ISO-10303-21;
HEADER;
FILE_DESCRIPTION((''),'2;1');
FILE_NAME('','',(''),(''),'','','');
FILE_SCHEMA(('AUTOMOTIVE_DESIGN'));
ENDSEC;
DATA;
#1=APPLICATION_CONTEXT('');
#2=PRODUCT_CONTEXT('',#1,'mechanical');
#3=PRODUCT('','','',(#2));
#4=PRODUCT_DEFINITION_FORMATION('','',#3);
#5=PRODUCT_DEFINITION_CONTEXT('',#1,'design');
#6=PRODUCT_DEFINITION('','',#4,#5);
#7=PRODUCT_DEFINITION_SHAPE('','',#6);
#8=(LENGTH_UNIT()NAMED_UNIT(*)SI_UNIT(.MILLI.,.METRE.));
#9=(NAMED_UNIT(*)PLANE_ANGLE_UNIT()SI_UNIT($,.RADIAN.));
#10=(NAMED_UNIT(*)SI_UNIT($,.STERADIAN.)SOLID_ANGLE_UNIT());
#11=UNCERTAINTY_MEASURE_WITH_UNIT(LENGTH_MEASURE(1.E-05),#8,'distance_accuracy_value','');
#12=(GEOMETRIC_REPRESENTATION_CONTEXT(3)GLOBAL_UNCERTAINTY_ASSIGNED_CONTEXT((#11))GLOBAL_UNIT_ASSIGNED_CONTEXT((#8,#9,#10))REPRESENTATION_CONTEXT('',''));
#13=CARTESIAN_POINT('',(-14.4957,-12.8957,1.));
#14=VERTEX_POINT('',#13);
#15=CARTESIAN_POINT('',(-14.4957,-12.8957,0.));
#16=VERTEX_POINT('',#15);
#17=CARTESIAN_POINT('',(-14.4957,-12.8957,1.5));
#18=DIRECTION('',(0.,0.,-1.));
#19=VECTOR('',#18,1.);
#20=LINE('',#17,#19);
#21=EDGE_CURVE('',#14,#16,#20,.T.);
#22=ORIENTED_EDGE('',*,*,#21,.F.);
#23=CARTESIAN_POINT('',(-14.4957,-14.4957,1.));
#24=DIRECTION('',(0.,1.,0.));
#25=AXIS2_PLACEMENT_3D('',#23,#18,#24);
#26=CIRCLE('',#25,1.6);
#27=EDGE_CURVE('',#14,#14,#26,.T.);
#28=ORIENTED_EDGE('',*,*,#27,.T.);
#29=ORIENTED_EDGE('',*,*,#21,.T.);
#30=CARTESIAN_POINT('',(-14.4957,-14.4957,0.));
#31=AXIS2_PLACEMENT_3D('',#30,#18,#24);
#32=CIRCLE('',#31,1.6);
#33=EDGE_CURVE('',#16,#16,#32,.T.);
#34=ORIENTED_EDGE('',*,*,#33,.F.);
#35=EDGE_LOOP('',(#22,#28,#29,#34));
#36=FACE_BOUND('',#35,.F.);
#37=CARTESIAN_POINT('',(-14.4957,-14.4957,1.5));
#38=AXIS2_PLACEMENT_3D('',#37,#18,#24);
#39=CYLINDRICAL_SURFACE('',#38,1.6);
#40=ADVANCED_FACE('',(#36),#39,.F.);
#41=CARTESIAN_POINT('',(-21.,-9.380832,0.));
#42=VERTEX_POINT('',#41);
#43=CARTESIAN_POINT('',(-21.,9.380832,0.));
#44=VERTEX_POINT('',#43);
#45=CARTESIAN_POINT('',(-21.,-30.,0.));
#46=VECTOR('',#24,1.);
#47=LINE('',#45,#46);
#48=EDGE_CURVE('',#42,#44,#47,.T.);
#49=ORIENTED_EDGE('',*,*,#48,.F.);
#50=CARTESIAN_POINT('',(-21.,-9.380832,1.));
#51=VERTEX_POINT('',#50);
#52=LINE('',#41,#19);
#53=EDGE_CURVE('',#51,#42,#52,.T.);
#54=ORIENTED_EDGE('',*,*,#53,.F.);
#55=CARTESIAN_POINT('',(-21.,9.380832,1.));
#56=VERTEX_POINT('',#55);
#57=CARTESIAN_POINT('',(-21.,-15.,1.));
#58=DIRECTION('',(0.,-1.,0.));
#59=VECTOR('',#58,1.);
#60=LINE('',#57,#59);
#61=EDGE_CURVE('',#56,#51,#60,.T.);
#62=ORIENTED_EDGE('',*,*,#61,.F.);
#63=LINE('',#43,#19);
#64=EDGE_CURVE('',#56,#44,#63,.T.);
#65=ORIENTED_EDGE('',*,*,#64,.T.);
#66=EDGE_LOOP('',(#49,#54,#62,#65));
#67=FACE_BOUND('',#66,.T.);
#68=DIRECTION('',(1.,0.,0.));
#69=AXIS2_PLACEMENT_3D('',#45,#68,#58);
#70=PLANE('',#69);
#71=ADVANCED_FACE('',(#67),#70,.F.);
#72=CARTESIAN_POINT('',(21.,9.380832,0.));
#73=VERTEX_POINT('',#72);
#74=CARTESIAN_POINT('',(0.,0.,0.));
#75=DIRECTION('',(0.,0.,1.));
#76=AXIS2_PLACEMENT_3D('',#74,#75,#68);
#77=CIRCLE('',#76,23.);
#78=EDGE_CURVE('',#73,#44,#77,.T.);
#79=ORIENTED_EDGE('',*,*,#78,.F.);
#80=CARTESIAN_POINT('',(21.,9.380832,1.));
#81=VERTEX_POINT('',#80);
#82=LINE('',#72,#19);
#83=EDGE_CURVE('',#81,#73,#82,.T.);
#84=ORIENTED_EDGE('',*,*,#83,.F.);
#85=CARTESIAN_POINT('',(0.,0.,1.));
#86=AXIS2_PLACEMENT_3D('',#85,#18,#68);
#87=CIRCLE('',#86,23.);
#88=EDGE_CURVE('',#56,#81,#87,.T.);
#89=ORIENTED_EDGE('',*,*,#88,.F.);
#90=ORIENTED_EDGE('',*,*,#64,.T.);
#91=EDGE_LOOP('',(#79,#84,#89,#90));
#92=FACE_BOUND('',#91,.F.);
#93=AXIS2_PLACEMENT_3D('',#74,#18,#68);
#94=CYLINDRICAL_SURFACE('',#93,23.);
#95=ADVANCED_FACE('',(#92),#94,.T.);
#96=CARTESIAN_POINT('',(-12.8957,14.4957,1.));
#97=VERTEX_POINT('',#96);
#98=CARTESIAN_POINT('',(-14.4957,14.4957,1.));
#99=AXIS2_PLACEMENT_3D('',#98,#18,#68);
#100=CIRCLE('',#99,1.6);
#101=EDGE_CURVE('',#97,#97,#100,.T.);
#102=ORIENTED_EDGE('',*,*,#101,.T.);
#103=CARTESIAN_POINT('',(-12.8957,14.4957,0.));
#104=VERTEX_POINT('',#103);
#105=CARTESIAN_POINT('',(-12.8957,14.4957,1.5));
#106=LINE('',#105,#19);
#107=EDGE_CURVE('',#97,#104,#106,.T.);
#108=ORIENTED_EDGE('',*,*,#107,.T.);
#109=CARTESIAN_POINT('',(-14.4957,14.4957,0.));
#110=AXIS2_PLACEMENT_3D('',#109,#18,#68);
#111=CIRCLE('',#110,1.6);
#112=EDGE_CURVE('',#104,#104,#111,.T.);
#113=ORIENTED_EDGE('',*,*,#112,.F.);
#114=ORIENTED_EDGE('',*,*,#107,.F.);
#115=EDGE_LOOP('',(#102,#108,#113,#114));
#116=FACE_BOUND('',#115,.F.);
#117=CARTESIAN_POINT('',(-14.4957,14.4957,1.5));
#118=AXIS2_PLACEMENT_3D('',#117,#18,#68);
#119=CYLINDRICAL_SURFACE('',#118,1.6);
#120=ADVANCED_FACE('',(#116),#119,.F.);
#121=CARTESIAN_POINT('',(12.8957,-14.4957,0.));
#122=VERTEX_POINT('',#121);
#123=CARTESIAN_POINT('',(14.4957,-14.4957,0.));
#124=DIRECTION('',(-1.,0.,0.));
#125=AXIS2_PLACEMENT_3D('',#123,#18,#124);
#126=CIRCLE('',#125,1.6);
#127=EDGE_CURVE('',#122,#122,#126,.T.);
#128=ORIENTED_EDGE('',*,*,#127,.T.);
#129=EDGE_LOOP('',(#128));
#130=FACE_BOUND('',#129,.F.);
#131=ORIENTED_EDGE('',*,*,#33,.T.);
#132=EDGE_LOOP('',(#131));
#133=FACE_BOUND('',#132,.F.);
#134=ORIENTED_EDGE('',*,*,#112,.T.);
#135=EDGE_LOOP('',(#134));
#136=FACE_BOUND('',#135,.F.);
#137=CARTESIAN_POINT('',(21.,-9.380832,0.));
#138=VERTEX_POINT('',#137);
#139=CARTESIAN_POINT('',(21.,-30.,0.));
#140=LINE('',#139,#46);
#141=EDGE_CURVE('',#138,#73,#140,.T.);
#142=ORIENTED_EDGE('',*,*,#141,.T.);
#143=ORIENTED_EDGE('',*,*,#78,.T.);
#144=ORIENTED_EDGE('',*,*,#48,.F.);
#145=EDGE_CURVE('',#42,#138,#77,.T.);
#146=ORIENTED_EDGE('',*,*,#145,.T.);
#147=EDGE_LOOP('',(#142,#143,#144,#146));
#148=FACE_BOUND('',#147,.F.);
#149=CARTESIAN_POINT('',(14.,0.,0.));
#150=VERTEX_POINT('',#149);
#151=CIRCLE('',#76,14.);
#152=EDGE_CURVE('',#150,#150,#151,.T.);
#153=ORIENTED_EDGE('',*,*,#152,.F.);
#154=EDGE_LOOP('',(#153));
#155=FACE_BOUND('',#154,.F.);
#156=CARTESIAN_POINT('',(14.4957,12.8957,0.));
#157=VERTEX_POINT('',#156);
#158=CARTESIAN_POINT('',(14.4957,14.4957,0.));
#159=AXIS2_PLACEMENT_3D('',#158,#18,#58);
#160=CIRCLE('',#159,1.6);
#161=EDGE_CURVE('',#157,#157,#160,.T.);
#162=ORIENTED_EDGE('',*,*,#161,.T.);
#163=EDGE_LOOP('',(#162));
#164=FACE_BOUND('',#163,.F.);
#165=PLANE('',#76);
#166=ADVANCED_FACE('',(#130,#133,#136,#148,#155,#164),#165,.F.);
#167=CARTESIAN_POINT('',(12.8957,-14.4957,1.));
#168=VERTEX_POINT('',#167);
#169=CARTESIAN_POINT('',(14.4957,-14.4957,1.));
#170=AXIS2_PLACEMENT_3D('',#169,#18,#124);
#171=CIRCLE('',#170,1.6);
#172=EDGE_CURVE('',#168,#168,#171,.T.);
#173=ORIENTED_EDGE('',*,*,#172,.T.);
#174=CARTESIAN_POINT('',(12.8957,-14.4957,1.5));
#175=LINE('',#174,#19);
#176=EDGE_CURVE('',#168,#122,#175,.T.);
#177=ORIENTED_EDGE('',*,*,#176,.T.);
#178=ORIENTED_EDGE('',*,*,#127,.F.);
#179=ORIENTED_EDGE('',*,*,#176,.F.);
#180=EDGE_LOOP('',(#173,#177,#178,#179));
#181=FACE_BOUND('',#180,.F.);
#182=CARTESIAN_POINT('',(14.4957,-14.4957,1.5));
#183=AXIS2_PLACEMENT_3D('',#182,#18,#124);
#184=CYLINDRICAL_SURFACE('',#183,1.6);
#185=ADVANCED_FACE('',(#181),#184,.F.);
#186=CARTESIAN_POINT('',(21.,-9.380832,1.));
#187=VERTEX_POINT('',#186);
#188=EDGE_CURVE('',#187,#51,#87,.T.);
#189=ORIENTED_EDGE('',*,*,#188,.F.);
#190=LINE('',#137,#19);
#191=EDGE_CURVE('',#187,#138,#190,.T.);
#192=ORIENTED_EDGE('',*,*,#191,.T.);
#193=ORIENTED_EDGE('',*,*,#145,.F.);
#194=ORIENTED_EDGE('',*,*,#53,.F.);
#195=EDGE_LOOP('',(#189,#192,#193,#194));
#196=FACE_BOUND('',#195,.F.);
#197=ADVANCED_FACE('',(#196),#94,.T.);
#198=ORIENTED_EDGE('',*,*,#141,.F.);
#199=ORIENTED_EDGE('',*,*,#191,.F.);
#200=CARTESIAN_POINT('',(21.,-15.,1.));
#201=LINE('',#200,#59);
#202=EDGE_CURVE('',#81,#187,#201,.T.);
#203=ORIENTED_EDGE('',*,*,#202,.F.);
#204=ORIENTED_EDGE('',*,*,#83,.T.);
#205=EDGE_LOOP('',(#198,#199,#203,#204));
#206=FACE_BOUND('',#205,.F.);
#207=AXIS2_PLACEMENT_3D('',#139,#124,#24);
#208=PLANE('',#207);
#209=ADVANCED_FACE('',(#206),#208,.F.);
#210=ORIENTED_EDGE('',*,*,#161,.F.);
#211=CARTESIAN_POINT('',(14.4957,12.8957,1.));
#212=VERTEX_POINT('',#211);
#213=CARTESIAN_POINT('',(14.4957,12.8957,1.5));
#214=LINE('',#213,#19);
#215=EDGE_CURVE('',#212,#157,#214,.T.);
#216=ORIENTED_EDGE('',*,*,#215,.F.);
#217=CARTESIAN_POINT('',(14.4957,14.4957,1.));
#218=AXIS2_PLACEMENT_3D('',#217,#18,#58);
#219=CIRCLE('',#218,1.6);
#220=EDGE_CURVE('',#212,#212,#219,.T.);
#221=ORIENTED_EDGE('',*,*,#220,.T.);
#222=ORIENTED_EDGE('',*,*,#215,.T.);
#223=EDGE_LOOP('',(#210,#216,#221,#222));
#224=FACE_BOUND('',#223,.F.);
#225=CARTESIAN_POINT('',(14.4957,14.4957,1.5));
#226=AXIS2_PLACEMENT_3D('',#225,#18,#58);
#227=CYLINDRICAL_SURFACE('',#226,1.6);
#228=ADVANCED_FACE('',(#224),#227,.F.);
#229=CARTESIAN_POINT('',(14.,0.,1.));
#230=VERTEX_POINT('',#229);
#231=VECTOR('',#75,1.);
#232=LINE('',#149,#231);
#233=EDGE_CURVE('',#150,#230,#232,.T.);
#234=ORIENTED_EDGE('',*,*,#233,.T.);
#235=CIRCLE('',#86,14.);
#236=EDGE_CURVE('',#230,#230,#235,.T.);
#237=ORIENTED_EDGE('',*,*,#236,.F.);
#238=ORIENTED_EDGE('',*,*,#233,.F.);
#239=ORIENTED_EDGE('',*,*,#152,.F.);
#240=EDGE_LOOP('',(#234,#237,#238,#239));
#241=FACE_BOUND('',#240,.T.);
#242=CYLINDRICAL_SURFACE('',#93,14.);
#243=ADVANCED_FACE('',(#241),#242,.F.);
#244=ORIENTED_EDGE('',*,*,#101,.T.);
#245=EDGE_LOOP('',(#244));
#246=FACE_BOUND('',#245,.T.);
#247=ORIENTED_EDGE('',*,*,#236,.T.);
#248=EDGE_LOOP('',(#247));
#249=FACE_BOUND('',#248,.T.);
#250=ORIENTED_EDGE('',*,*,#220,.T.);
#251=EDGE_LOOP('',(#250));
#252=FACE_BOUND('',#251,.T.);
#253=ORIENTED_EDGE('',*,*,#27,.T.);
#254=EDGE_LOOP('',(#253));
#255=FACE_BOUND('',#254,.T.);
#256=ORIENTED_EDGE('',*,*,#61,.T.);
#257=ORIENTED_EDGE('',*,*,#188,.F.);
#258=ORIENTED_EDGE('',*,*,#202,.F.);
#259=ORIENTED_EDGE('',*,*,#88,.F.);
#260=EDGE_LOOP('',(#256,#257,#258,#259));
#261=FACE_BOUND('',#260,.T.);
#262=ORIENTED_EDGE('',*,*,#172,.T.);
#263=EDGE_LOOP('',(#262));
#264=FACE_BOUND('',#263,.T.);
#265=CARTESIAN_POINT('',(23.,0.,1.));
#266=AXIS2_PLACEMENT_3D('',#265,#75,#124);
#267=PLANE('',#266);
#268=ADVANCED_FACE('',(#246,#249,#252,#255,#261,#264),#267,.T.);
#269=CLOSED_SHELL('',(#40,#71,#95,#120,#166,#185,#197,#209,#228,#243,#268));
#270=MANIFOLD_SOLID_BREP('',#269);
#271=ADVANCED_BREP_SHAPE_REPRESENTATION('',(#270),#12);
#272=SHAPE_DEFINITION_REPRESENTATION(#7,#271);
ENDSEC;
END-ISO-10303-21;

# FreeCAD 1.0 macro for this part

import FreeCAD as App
import Part
import Sketcher

V = App.Vector
Q = App.Units.Quantity


def edges_at(feature, points):
    """Names of the edges that pass closest to the given points."""
    edges = feature.Shape.Edges
    near = lambda p: min(range(len(edges)), key=lambda i: edges[i].distToShape(Part.Vertex(*p))[0])
    return sorted({f"Edge{near(p) + 1}" for p in points})

doc = App.newDocument("Part")
body = doc.addObject("PartDesign::Body", "Body")

# Sketch on XY plane
sketch1 = body.newObject("Sketcher::SketchObject", "Sketch")
sketch1.AttachmentSupport = (doc.getObject("XY_Plane"), [""])
sketch1.MapMode = "FlatFace"
sketch1.addGeometry(Part.Circle(V(0, 0, 0), V(0, 0, 1), 23), False)
sketch1.addGeometry(Part.Circle(V(0, 0, 0), V(0, 0, 1), 14), False)
sketch1.addConstraint(Sketcher.Constraint("Coincident", 0, 3, -1, 1))
sketch1.addConstraint(Sketcher.Constraint("Coincident", 1, 3, -1, 1))
sketch1.addConstraint(Sketcher.Constraint("Diameter", 0, Q("46 mm")))
sketch1.addConstraint(Sketcher.Constraint("Diameter", 1, Q("28 mm")))
pad1 = body.newObject("PartDesign::Pad", "Pad")
pad1.Profile = sketch1
pad1.Length = 10

# Sketch on XY plane
sketch2 = body.newObject("Sketcher::SketchObject", "Sketch001")
sketch2.AttachmentSupport = (doc.getObject("XY_Plane"), [""])
sketch2.MapMode = "FlatFace"
sketch2.AttachmentOffset = App.Placement(V(0, 0, 10), App.Rotation())
sketch2.addGeometry(Part.Circle(V(14.4957, 14.4957, 0), V(0, 0, 1), 1.6), False)
sketch2.addConstraint(Sketcher.Constraint("Diameter", 0, Q("3.2 mm")))
sketch2.addConstraint(Sketcher.Constraint("DistanceX", -1, 1, 0, 3, Q("14.4957 mm")))
sketch2.addConstraint(Sketcher.Constraint("DistanceY", -1, 1, 0, 3, Q("14.4957 mm")))
doc.recompute()
hole = body.newObject("PartDesign::Hole", "Hole")
hole.Profile = sketch2
hole.ThreadType = "None"
hole.Diameter = 3.2
hole.DepthType = "ThroughAll"
hole.HoleCutType = "Counterbore"
hole.HoleCutDiameter = 7
hole.HoleCutDepth = 8.5
doc.recompute()

fillet = body.newObject("PartDesign::Fillet", "Fillet")
fillet.Base = (hole, edges_at(hole, [(14.328, 17.992, 5.75), (17.992, 14.328, 5.75)]))
fillet.Radius = 0.5
doc.recompute()

polarpattern = body.newObject("PartDesign::PolarPattern", "PolarPattern")
polarpattern.Originals = [hole, fillet]
polarpattern.Axis = (doc.getObject("Z_Axis"), [""])
polarpattern.Angle = 360
polarpattern.Occurrences = 4
body.Tip = polarpattern

# Sketch on XZ plane
sketch3 = body.newObject("Sketcher::SketchObject", "Sketch002")
sketch3.AttachmentSupport = (doc.getObject("XZ_Plane"), [""])
sketch3.MapMode = "FlatFace"
sketch3.addGeometry(Part.LineSegment(V(-23, 1, 0), V(-23, 10, 0)), False)
sketch3.addGeometry(Part.LineSegment(V(-23, 10, 0), V(23, 10, 0)), False)
sketch3.addGeometry(Part.LineSegment(V(23, 10, 0), V(23, 1, 0)), False)
sketch3.addGeometry(Part.LineSegment(V(23, 1, 0), V(-23, 1, 0)), False)
sketch3.addConstraint(Sketcher.Constraint("Coincident", 0, 2, 1, 1))
sketch3.addConstraint(Sketcher.Constraint("Coincident", 1, 2, 2, 1))
sketch3.addConstraint(Sketcher.Constraint("Coincident", 2, 2, 3, 1))
sketch3.addConstraint(Sketcher.Constraint("Coincident", 3, 2, 0, 1))
sketch3.addConstraint(Sketcher.Constraint("Vertical", 0))
sketch3.addConstraint(Sketcher.Constraint("Horizontal", 1))
sketch3.addConstraint(Sketcher.Constraint("Vertical", 2))
sketch3.addConstraint(Sketcher.Constraint("Horizontal", 3))
sketch3.addConstraint(Sketcher.Constraint("DistanceY", -1, 1, 2, 2, Q("1 mm")))
sketch3.addConstraint(Sketcher.Constraint("DistanceX", 1, 1, 1, 2, Q("46 mm")))
sketch3.addConstraint(Sketcher.Constraint("DistanceY", 0, 1, 0, 2, Q("9 mm")))
sketch3.addConstraint(Sketcher.Constraint("DistanceX", 0, 2, -1, 1, Q("23 mm")))
pocket1 = body.newObject("PartDesign::Pocket", "Pocket")
pocket1.Profile = sketch3
pocket1.Type = "ThroughAll"
pocket1.Midplane = True

# Sketch on XY plane
sketch4 = body.newObject("Sketcher::SketchObject", "Sketch003")
sketch4.AttachmentSupport = (doc.getObject("XY_Plane"), [""])
sketch4.MapMode = "FlatFace"
sketch4.addGeometry(Part.LineSegment(V(26, 30, 0), V(21, 30, 0)), False)
sketch4.addGeometry(Part.LineSegment(V(21, 30, 0), V(21, -30, 0)), False)
sketch4.addGeometry(Part.LineSegment(V(21, -30, 0), V(26, -30, 0)), False)
sketch4.addGeometry(Part.LineSegment(V(26, -30, 0), V(26, 30, 0)), False)
sketch4.addConstraint(Sketcher.Constraint("Coincident", 0, 2, 1, 1))
sketch4.addConstraint(Sketcher.Constraint("Coincident", 1, 2, 2, 1))
sketch4.addConstraint(Sketcher.Constraint("Coincident", 2, 2, 3, 1))
sketch4.addConstraint(Sketcher.Constraint("Coincident", 3, 2, 0, 1))
sketch4.addConstraint(Sketcher.Constraint("Horizontal", 0))
sketch4.addConstraint(Sketcher.Constraint("Vertical", 1))
sketch4.addConstraint(Sketcher.Constraint("Horizontal", 2))
sketch4.addConstraint(Sketcher.Constraint("Vertical", 3))
sketch4.addConstraint(Sketcher.Constraint("DistanceX", 0, 2, 0, 1, Q("5 mm")))
sketch4.addConstraint(Sketcher.Constraint("DistanceY", 1, 2, 1, 1, Q("60 mm")))
sketch4.addConstraint(Sketcher.Constraint("DistanceX", -1, 1, 0, 2, Q("21 mm")))
sketch4.addConstraint(Sketcher.Constraint("DistanceY", -1, 1, 0, 2, Q("30 mm")))
pocket2 = body.newObject("PartDesign::Pocket", "Pocket001")
pocket2.Profile = sketch4
pocket2.Length = 10
pocket2.Reversed = True
doc.recompute()

mirrored = body.newObject("PartDesign::Mirrored", "Mirrored")
mirrored.Originals = [pocket2]
mirrored.MirrorPlane = (doc.getObject("YZ_Plane"), [""])
body.Tip = mirrored

doc.recompute()
